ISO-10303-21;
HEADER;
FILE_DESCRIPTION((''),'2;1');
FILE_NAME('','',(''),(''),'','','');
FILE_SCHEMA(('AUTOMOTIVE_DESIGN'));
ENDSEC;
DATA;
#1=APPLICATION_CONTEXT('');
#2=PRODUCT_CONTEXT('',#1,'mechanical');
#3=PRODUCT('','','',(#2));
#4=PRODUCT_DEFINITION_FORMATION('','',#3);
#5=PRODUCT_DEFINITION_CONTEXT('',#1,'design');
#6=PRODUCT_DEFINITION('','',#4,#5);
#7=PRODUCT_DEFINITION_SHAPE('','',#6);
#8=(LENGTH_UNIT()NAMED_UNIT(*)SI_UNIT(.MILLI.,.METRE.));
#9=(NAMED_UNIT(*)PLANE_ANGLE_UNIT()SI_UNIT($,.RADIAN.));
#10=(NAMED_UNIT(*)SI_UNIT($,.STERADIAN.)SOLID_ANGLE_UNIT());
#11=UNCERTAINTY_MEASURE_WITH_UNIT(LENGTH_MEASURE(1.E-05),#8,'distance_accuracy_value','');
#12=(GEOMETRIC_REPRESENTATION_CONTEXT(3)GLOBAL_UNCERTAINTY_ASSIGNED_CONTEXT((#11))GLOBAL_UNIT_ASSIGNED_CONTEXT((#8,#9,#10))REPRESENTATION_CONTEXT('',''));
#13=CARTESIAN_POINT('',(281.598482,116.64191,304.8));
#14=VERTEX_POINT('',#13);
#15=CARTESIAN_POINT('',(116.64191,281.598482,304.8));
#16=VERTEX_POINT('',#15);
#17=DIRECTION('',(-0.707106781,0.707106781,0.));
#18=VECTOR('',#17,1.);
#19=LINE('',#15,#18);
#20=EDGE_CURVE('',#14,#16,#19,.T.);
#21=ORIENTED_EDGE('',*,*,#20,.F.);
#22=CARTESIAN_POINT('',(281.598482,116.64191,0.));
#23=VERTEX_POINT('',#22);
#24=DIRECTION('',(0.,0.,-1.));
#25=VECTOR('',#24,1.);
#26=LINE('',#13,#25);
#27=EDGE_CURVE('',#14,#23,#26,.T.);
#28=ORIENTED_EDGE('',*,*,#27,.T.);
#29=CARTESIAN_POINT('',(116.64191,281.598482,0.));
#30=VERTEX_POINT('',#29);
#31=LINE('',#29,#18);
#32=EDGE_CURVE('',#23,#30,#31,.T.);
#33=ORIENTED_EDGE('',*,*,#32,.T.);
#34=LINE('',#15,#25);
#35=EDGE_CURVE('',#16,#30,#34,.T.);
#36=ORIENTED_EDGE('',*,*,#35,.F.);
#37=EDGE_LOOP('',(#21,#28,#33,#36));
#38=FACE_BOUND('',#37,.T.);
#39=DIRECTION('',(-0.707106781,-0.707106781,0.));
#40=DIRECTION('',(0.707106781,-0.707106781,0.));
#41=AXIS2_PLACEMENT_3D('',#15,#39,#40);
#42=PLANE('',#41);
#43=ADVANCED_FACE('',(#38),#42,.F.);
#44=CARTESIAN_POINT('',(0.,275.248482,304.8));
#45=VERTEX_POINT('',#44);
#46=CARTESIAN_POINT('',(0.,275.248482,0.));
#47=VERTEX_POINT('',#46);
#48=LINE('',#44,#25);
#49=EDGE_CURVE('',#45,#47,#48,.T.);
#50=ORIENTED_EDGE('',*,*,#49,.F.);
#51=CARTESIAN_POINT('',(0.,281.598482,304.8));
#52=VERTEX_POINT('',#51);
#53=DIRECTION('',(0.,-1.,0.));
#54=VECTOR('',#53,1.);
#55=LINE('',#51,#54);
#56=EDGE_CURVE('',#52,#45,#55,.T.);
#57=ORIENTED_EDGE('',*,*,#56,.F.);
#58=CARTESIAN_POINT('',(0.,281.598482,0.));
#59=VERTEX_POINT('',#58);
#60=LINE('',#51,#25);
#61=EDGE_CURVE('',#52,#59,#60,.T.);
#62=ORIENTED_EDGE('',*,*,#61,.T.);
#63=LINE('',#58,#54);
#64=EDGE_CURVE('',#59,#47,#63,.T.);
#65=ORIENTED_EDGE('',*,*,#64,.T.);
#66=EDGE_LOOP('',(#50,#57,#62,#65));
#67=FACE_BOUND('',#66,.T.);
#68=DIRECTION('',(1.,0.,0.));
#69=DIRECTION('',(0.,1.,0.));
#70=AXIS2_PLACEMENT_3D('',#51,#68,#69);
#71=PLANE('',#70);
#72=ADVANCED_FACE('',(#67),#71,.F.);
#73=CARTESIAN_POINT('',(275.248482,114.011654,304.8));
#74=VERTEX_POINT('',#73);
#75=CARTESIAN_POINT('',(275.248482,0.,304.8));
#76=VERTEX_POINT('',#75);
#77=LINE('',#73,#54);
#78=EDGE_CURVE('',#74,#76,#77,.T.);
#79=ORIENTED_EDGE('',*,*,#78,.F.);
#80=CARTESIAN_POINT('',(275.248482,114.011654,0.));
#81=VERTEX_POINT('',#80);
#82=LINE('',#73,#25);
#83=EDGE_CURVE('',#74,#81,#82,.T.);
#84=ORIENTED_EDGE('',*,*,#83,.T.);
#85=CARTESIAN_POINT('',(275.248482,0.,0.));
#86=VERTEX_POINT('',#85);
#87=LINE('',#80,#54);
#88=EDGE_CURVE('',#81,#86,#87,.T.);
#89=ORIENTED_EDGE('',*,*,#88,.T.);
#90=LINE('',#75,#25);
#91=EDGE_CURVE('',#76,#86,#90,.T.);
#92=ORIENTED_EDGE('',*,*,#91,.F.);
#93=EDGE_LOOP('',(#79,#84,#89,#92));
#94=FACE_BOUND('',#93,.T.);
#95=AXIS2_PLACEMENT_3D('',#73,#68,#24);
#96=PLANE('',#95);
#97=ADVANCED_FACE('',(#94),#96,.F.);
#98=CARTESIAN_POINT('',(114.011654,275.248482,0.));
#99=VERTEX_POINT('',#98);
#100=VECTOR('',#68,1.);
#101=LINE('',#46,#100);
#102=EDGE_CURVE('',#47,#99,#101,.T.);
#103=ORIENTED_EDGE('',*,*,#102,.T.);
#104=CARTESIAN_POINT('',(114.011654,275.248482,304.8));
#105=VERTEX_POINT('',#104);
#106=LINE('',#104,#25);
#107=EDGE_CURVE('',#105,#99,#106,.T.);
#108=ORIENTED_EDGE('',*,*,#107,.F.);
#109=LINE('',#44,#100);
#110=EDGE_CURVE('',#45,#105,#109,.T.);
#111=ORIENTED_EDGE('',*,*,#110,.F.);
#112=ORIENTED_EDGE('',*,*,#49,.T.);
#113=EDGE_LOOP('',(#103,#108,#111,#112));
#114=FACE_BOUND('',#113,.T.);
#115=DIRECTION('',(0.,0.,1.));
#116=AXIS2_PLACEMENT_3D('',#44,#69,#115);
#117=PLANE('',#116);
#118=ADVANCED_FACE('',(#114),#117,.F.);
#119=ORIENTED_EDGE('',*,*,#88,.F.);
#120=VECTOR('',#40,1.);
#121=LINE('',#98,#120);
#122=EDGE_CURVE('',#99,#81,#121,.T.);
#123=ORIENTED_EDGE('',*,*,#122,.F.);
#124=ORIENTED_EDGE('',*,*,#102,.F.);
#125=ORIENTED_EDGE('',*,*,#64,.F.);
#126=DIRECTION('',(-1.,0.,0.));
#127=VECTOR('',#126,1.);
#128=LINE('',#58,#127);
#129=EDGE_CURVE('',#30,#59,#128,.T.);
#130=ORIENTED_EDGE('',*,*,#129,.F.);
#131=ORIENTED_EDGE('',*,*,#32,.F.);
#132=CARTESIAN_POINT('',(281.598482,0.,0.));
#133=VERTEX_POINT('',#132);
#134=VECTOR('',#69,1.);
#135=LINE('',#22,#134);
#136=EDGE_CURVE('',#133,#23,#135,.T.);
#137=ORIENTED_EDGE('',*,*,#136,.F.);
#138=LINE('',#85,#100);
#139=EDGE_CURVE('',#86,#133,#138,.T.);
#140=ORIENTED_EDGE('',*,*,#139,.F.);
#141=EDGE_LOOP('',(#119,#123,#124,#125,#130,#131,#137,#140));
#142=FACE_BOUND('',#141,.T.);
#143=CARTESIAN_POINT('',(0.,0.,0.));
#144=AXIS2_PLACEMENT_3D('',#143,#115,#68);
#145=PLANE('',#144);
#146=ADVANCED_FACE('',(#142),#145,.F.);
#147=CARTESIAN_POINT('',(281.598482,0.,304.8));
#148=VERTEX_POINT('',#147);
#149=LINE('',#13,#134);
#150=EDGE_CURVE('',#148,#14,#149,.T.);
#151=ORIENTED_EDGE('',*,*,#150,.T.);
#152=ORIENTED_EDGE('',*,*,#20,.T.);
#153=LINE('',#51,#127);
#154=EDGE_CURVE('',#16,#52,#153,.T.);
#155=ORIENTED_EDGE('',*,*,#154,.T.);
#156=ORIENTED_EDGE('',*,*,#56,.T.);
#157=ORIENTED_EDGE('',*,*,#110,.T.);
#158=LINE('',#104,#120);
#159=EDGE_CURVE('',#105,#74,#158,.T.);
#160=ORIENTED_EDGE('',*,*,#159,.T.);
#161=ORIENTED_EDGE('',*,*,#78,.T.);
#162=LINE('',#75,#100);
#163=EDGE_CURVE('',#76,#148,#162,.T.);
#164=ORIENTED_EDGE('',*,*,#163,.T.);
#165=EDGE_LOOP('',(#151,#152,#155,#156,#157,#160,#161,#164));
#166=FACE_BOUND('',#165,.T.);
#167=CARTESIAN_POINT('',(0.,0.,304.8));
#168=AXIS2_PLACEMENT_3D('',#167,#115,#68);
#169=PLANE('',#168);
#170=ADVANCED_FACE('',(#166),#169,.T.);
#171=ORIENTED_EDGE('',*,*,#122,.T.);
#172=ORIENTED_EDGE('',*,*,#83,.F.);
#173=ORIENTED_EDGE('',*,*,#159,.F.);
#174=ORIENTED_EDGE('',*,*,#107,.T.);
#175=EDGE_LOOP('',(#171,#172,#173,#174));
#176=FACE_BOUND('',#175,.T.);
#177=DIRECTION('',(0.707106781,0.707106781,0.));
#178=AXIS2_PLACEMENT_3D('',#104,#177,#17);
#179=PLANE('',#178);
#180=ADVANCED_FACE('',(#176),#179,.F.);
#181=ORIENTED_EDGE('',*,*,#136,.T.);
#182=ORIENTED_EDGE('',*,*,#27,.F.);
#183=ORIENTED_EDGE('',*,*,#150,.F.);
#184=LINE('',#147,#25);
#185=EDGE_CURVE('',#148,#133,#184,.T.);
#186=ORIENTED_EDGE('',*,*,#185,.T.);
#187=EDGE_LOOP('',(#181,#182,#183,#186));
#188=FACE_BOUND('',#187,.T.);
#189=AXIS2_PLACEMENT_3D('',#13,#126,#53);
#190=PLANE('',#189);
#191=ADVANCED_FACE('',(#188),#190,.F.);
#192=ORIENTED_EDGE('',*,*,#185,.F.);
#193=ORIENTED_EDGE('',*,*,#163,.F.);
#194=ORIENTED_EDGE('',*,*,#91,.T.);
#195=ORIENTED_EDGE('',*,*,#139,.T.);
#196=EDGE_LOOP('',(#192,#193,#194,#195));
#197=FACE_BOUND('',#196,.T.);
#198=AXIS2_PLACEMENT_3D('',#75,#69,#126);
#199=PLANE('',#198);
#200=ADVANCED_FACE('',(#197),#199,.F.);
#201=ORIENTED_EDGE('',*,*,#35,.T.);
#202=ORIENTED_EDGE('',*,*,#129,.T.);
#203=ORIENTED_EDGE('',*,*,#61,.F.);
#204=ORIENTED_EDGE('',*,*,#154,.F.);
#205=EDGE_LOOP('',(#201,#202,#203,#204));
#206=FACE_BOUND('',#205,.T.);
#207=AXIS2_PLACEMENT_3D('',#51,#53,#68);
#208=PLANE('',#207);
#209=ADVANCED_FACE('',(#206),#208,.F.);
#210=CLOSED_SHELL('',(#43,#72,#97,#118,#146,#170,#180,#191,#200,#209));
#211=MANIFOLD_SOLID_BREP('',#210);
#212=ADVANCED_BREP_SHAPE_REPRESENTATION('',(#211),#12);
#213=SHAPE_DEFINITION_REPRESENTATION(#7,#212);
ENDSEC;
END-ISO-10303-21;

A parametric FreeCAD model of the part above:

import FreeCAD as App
import Part
import Sketcher
from FreeCAD import Vector
Q = App.Units.Quantity


def add_polygon(sketch, points):
    """Adds a closed chain of lines whose ends are joined by coincident constraints."""
    first, n = sketch.GeometryCount, len(points)
    for a, b in zip(points, points[1:] + points[:1]):
        sketch.addGeometry(Part.LineSegment(App.Vector(*a, 0), App.Vector(*b, 0)), False)
    for i in range(n):
        sketch.addConstraint(Sketcher.Constraint("Coincident", first + i, 2, first + (i + 1) % n, 1))

doc = App.newDocument("Part")
params = doc.addObject("Spreadsheet::Sheet", "Params")
for row, (alias, value) in enumerate([
    ("sketch1_width", "0.25 in"),
    ("pad1_length", "12 in"),
], start=1):
    params.set(f"A{row}", alias)
    params.set(f"B{row}", "=" + value)
    params.setAlias(f"B{row}", alias)

body = doc.addObject("PartDesign::Body", "Body")

# Sketch on XY plane
sketch1 = doc.addObject("Sketcher::SketchObject", "Sketch")
body.addObject(sketch1)
sketch1.AttachmentSupport = (doc.XY_Plane, [""])
sketch1.MapMode = "FlatFace"
add_polygon(sketch1, [(116.64191, 281.598482), (0, 281.598482), (0, 275.248482), (114.011654, 275.248482), (275.248482, 114.011654), (275.248482, 0), (281.598482, 0), (281.598482, 116.64191)])  # lines 0-7
sketch1.addConstraint([
    Sketcher.Constraint("Horizontal", 0),
    Sketcher.Constraint("Vertical", 1),
    Sketcher.Constraint("Horizontal", 2),
    Sketcher.Constraint("Vertical", 4),
    Sketcher.Constraint("Horizontal", 5),
    Sketcher.Constraint("Vertical", 6),
    Sketcher.Constraint("PointOnObject", 0, 2, -2),
    Sketcher.Constraint("PointOnObject", 4, 2, -1),
    Sketcher.Constraint("Parallel", 3, 7),
    Sketcher.Constraint("Equal", 5, 1),
    Sketcher.Constraint("Equal", 2, 4),
    Sketcher.Constraint("Equal", 0, 6),
    Sketcher.Constraint("DistanceX", 5, 1, 5, 2, Q("0.25 in")),
    Sketcher.Constraint("DistanceX", 0, 2, 0, 1, 116.64191),
    Sketcher.Constraint("Distance", 3, 228.023308),
    Sketcher.Constraint("Distance", 7, 233.28382),
])
sketch1.setExpression("Constraints[20]", "Params.sketch1_width")
pad1 = doc.addObject("PartDesign::Pad", "Pad")
body.addObject(pad1)
pad1.Profile = sketch1
pad1.setExpression("Length", "Params.pad1_length")

doc.recompute()
